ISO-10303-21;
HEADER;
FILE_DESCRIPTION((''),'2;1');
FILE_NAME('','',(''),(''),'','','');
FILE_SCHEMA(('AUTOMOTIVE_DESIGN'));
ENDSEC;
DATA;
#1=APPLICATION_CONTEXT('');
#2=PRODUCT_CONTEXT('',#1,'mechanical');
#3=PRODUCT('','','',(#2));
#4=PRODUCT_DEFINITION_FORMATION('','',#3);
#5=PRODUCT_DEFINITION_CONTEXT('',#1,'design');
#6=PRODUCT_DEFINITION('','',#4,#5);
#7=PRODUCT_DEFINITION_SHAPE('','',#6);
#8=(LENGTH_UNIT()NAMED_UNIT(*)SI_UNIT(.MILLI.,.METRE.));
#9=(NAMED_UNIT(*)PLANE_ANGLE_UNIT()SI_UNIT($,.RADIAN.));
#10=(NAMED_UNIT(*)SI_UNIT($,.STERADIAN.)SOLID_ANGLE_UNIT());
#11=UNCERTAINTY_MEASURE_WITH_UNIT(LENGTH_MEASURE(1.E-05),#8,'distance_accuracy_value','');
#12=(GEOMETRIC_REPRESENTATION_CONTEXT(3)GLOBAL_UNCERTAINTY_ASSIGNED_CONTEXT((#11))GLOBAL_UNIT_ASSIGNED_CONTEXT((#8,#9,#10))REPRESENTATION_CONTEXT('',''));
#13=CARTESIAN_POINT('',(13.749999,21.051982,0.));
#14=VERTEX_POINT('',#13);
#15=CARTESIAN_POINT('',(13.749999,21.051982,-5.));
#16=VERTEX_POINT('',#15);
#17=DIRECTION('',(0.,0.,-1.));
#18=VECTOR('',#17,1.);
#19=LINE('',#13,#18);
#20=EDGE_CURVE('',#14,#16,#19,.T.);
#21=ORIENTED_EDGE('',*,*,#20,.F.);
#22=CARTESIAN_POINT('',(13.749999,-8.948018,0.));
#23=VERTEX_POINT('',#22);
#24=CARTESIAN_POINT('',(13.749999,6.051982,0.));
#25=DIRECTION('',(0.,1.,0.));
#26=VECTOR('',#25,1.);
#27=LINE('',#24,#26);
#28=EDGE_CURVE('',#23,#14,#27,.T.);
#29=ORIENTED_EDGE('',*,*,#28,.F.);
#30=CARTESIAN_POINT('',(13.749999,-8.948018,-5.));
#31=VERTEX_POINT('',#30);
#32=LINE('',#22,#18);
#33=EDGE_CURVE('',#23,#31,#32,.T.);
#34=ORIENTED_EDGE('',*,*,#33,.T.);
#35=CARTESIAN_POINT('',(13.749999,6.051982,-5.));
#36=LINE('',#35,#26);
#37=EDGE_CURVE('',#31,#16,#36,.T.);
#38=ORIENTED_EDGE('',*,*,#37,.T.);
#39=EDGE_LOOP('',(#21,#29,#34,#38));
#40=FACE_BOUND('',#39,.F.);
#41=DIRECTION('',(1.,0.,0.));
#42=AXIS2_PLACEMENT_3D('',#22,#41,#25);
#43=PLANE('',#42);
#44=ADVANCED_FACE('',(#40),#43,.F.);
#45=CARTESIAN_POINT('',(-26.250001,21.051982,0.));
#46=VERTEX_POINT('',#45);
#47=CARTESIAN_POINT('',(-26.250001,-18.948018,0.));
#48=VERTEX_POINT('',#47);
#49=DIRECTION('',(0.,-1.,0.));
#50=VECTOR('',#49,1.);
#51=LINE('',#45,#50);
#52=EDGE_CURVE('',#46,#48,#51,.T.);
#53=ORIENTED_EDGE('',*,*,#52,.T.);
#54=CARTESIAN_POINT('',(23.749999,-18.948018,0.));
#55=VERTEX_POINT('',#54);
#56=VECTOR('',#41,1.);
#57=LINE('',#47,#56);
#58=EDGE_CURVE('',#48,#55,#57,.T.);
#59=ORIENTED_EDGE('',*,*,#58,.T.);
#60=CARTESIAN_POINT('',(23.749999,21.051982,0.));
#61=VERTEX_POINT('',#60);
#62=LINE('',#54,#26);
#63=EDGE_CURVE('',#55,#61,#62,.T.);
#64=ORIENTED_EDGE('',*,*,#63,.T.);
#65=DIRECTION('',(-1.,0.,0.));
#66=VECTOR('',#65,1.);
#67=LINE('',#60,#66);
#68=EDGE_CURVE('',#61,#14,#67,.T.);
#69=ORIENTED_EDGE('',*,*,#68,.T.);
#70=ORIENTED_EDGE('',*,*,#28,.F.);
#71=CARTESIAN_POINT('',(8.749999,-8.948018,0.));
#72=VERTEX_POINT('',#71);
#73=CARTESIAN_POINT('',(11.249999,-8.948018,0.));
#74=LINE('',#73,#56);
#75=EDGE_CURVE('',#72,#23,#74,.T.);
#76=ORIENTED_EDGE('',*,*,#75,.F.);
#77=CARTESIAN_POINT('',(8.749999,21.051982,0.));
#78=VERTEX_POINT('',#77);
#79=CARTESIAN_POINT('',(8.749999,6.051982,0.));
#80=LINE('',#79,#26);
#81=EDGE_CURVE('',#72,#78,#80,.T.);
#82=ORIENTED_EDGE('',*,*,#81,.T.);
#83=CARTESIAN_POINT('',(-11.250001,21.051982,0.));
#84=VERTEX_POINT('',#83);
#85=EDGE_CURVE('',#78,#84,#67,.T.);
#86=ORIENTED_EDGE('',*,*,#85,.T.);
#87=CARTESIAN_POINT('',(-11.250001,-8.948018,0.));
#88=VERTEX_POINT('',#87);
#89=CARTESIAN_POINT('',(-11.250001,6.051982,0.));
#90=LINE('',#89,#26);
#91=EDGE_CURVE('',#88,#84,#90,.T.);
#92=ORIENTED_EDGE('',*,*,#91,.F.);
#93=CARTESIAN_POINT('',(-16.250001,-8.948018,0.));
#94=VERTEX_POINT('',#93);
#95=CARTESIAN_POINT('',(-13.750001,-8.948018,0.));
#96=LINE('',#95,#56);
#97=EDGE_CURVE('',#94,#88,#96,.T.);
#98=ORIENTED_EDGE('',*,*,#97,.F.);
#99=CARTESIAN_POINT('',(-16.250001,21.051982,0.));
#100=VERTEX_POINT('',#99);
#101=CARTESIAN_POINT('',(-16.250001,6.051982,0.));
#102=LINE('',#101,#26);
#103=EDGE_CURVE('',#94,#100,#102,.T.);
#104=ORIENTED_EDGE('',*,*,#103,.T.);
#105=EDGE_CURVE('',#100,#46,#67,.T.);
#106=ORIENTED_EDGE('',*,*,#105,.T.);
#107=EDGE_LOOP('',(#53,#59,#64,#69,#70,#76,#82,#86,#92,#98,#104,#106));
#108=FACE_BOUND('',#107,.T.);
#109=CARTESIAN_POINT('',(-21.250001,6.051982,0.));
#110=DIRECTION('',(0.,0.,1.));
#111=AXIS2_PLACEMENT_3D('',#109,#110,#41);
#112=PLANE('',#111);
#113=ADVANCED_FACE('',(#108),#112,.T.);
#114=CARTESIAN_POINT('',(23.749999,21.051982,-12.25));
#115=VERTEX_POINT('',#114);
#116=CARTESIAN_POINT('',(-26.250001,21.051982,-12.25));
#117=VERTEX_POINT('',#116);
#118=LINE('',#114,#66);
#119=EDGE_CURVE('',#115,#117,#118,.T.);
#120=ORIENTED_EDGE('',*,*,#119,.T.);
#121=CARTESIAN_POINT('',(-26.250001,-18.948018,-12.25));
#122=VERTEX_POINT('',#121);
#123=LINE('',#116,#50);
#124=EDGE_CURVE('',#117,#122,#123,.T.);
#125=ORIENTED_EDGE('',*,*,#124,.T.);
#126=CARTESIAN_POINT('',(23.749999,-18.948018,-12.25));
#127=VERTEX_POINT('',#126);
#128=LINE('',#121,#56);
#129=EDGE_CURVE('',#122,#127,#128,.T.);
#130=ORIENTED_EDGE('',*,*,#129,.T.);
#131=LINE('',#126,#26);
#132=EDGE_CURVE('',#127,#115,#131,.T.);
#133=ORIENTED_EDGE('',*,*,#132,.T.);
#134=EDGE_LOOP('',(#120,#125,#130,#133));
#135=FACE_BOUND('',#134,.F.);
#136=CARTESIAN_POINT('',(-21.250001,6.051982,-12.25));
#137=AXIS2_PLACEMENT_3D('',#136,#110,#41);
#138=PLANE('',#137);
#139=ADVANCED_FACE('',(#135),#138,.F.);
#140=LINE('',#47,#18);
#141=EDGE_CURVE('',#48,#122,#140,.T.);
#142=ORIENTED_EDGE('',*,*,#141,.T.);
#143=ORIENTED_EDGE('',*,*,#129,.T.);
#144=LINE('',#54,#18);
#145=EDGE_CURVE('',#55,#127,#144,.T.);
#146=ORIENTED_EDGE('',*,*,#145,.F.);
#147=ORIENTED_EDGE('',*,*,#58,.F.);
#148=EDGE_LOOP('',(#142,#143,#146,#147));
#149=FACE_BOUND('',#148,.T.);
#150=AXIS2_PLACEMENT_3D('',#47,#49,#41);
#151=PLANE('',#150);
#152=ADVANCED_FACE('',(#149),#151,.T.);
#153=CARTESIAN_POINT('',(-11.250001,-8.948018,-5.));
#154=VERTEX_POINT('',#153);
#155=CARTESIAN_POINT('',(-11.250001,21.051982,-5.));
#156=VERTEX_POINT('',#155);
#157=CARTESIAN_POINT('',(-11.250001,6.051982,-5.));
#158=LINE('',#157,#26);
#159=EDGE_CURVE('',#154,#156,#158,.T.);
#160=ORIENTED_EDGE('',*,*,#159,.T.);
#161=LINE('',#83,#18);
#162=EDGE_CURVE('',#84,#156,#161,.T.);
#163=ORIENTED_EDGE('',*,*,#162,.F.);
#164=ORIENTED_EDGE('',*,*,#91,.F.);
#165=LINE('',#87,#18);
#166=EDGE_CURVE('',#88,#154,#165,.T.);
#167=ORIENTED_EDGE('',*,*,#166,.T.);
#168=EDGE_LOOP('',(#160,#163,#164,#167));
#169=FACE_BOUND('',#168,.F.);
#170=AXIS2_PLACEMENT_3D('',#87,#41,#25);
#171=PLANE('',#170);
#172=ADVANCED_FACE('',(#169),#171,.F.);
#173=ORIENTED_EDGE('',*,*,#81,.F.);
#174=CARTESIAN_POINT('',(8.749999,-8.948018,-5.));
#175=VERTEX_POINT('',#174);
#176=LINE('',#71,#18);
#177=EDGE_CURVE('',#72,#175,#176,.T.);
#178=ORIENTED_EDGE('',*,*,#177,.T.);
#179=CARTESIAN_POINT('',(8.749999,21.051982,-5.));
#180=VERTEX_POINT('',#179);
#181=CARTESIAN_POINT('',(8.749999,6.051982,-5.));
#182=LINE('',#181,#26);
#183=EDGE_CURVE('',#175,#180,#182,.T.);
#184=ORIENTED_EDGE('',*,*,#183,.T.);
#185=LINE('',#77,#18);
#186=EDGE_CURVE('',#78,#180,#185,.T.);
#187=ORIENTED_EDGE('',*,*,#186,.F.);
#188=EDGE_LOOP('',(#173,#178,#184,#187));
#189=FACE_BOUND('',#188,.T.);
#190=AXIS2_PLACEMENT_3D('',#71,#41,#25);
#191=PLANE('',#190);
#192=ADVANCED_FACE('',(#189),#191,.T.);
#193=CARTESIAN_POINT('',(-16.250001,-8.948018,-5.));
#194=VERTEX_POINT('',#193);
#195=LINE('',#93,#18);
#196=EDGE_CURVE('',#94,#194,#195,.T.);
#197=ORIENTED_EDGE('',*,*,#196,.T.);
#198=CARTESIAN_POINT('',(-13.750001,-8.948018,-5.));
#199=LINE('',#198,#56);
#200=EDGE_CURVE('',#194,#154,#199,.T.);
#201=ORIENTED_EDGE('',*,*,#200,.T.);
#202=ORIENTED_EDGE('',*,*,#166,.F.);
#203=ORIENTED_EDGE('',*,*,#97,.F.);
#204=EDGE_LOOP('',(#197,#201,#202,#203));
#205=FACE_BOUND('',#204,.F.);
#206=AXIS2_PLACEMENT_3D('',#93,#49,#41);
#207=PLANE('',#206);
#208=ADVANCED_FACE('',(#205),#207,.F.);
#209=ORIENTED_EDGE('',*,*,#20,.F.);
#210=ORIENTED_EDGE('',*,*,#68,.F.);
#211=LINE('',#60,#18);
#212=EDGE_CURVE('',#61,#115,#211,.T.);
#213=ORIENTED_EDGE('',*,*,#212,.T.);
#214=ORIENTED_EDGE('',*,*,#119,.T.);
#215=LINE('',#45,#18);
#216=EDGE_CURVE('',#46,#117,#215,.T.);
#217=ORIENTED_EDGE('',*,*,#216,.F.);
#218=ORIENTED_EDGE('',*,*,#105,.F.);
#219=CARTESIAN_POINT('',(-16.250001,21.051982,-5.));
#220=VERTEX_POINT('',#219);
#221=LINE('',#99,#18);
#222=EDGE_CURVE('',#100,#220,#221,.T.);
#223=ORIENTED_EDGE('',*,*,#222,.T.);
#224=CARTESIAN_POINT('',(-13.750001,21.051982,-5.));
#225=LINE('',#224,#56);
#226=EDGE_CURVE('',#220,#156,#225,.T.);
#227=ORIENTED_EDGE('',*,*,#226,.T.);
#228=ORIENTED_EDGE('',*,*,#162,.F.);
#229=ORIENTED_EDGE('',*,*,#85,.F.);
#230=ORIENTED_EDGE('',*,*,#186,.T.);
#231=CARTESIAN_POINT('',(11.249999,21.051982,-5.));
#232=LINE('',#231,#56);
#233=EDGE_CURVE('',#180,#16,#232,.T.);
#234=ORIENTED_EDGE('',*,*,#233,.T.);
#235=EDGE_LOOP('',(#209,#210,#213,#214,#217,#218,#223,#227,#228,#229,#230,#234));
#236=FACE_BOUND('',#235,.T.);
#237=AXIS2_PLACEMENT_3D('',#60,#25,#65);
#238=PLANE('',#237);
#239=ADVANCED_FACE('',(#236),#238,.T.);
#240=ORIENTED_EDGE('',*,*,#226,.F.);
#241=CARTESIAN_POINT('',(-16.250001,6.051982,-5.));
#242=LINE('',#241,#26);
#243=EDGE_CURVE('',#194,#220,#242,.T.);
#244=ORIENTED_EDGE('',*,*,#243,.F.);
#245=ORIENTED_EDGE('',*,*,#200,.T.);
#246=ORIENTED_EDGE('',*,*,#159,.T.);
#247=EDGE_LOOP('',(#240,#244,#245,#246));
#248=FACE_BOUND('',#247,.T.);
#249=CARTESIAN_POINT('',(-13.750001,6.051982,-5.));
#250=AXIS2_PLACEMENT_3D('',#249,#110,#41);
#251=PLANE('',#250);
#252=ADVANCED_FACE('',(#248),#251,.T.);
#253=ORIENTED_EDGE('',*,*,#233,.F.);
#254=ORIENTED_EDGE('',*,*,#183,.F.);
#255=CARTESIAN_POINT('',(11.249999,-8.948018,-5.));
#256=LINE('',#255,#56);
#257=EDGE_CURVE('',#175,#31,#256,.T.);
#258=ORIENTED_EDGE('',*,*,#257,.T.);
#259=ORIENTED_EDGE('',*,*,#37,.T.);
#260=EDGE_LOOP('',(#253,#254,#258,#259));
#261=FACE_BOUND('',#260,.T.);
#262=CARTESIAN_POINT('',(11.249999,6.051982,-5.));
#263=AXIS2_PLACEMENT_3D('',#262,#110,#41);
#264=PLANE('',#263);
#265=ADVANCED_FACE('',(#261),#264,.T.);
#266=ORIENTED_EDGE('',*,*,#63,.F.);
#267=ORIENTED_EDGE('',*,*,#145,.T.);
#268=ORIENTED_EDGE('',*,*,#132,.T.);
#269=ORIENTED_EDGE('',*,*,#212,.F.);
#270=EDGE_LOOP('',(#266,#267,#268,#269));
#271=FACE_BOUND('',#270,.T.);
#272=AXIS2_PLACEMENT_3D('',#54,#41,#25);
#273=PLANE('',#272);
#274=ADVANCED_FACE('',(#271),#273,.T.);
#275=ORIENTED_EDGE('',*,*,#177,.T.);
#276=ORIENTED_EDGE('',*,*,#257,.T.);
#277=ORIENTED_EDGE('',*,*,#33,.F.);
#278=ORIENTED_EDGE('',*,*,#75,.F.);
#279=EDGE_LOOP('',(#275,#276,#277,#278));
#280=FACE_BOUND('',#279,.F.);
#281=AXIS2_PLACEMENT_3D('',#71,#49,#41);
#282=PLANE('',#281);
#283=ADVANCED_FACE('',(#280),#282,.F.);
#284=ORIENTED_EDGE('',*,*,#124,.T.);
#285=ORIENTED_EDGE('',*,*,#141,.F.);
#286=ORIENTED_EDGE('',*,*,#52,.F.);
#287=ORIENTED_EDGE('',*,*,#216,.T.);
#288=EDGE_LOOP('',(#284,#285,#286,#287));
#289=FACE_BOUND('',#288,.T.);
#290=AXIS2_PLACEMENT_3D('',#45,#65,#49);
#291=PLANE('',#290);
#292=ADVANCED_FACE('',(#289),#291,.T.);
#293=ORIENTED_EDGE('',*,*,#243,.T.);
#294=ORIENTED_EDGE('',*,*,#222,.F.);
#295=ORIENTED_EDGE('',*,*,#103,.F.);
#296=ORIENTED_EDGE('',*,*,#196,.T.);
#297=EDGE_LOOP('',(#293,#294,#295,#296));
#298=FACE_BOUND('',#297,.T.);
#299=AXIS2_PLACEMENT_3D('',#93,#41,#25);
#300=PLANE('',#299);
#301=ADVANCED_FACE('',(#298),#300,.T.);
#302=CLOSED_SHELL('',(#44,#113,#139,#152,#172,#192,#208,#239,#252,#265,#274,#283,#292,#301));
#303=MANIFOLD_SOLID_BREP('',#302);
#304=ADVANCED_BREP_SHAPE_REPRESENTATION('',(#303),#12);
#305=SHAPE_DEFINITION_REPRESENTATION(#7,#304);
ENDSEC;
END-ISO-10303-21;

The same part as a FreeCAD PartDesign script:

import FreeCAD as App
import Part
import Sketcher
from FreeCAD import Vector

doc = App.newDocument("Part")
params = doc.addObject("Spreadsheet::Sheet", "Params")
for row, (alias, value) in enumerate([
    ("sketch1_width", "50 mm"),
    ("sketch1_height", "40 mm"),
    ("pad1_length", "12.25 mm"),
    ("sketch2_width", "5 mm"),
    ("sketch2_height", "30 mm"),
    ("pocket1_length", "5 mm"),
], start=1):
    params.set(f"A{row}", alias)
    params.set(f"B{row}", "=" + value)
    params.setAlias(f"B{row}", alias)

body = doc.addObject("PartDesign::Body", "Body")

# Sketch on XY plane
sketch1 = body.newObject("Sketcher::SketchObject", "Sketch")
sketch1.AttachmentSupport = (doc.getObject("XY_Plane"), [""])
sketch1.MapMode = "FlatFace"
sketch1.addGeometry(Part.LineSegment(Vector(-26.250001, 21.051982, 0), Vector(-26.250001, -18.948018, 0)), False)
sketch1.addGeometry(Part.LineSegment(Vector(-26.250001, -18.948018, 0), Vector(23.749999, -18.948018, 0)), False)
sketch1.addGeometry(Part.LineSegment(Vector(23.749999, -18.948018, 0), Vector(23.749999, 21.051982, 0)), False)
sketch1.addGeometry(Part.LineSegment(Vector(23.749999, 21.051982, 0), Vector(-26.250001, 21.051982, 0)), False)
sketch1.addConstraint(Sketcher.Constraint("Coincident", 0, 2, 1, 1))
sketch1.addConstraint(Sketcher.Constraint("Coincident", 1, 2, 2, 1))
sketch1.addConstraint(Sketcher.Constraint("Coincident", 2, 2, 3, 1))
sketch1.addConstraint(Sketcher.Constraint("Coincident", 3, 2, 0, 1))
sketch1.addConstraint(Sketcher.Constraint("Vertical", 0))
sketch1.addConstraint(Sketcher.Constraint("Horizontal", 1))
sketch1.addConstraint(Sketcher.Constraint("Vertical", 2))
sketch1.addConstraint(Sketcher.Constraint("Horizontal", 3))
sketch1.addConstraint(Sketcher.Constraint("DistanceX", 1, 1, 1, 2, 50.0))
sketch1.addConstraint(Sketcher.Constraint("DistanceY", 0, 2, 0, 1, 40.0))
sketch1.addConstraint(Sketcher.Constraint("DistanceX", 0, 2, -1, 1, 26.250001))
sketch1.addConstraint(Sketcher.Constraint("DistanceY", 0, 2, -1, 1, 18.948018))
sketch1.setExpression("Constraints[8]", "Params.sketch1_width")
sketch1.setExpression("Constraints[9]", "Params.sketch1_height")
pad1 = body.newObject("PartDesign::Pad", "Pad")
pad1.Profile = sketch1
pad1.setExpression("Length", "Params.pad1_length")
pad1.Reversed = True

# Sketch on XY plane
sketch2 = body.newObject("Sketcher::SketchObject", "Sketch001")
sketch2.AttachmentSupport = (doc.getObject("XY_Plane"), [""])
sketch2.MapMode = "FlatFace"
sketch2.addGeometry(Part.LineSegment(Vector(-16.250001, 21.051982, 0), Vector(-16.250001, -8.948018, 0)), False)
sketch2.addGeometry(Part.LineSegment(Vector(-16.250001, -8.948018, 0), Vector(-11.250001, -8.948018, 0)), False)
sketch2.addGeometry(Part.LineSegment(Vector(-11.250001, -8.948018, 0), Vector(-11.250001, 21.051982, 0)), False)
sketch2.addGeometry(Part.LineSegment(Vector(-11.250001, 21.051982, 0), Vector(-16.250001, 21.051982, 0)), False)
sketch2.addGeometry(Part.LineSegment(Vector(8.749999, 21.051982, 0), Vector(8.749999, -8.948018, 0)), False)
sketch2.addGeometry(Part.LineSegment(Vector(8.749999, -8.948018, 0), Vector(13.749999, -8.948018, 0)), False)
sketch2.addGeometry(Part.LineSegment(Vector(13.749999, -8.948018, 0), Vector(13.749999, 21.051982, 0)), False)
sketch2.addGeometry(Part.LineSegment(Vector(13.749999, 21.051982, 0), Vector(8.749999, 21.051982, 0)), False)
sketch2.addConstraint(Sketcher.Constraint("Coincident", 0, 2, 1, 1))
sketch2.addConstraint(Sketcher.Constraint("Coincident", 1, 2, 2, 1))
sketch2.addConstraint(Sketcher.Constraint("Coincident", 2, 2, 3, 1))
sketch2.addConstraint(Sketcher.Constraint("Coincident", 3, 2, 0, 1))
sketch2.addConstraint(Sketcher.Constraint("Coincident", 4, 2, 5, 1))
sketch2.addConstraint(Sketcher.Constraint("Coincident", 5, 2, 6, 1))
sketch2.addConstraint(Sketcher.Constraint("Coincident", 6, 2, 7, 1))
sketch2.addConstraint(Sketcher.Constraint("Coincident", 7, 2, 4, 1))
sketch2.addConstraint(Sketcher.Constraint("Vertical", 0))
sketch2.addConstraint(Sketcher.Constraint("Horizontal", 1))
sketch2.addConstraint(Sketcher.Constraint("Vertical", 2))
sketch2.addConstraint(Sketcher.Constraint("Horizontal", 3))
sketch2.addConstraint(Sketcher.Constraint("Vertical", 4))
sketch2.addConstraint(Sketcher.Constraint("Horizontal", 5))
sketch2.addConstraint(Sketcher.Constraint("Vertical", 6))
sketch2.addConstraint(Sketcher.Constraint("Horizontal", 7))
sketch2.addConstraint(Sketcher.Constraint("Horizontal", 1, 2, 4, 2))
sketch2.addConstraint(Sketcher.Constraint("Horizontal", 3, 2, 6, 2))
sketch2.addConstraint(Sketcher.Constraint("Equal", 3, 5))
sketch2.addConstraint(Sketcher.Constraint("DistanceX", 1, 1, 1, 2, 5.0))
sketch2.addConstraint(Sketcher.Constraint("DistanceY", 0, 2, 0, 1, 30.0))
sketch2.addConstraint(Sketcher.Constraint("DistanceX", 1, 2, 4, 2, 20.0))
sketch2.addConstraint(Sketcher.Constraint("DistanceX", 0, 2, -1, 1, 16.250001))
sketch2.addConstraint(Sketcher.Constraint("DistanceY", -1, 1, 2, 2, 21.051982))
sketch2.setExpression("Constraints[19]", "Params.sketch2_width")
sketch2.setExpression("Constraints[20]", "Params.sketch2_height")
pocket1 = body.newObject("PartDesign::Pocket", "Pocket")
pocket1.Profile = sketch2
pocket1.setExpression("Length", "Params.pocket1_length")

doc.recompute()
